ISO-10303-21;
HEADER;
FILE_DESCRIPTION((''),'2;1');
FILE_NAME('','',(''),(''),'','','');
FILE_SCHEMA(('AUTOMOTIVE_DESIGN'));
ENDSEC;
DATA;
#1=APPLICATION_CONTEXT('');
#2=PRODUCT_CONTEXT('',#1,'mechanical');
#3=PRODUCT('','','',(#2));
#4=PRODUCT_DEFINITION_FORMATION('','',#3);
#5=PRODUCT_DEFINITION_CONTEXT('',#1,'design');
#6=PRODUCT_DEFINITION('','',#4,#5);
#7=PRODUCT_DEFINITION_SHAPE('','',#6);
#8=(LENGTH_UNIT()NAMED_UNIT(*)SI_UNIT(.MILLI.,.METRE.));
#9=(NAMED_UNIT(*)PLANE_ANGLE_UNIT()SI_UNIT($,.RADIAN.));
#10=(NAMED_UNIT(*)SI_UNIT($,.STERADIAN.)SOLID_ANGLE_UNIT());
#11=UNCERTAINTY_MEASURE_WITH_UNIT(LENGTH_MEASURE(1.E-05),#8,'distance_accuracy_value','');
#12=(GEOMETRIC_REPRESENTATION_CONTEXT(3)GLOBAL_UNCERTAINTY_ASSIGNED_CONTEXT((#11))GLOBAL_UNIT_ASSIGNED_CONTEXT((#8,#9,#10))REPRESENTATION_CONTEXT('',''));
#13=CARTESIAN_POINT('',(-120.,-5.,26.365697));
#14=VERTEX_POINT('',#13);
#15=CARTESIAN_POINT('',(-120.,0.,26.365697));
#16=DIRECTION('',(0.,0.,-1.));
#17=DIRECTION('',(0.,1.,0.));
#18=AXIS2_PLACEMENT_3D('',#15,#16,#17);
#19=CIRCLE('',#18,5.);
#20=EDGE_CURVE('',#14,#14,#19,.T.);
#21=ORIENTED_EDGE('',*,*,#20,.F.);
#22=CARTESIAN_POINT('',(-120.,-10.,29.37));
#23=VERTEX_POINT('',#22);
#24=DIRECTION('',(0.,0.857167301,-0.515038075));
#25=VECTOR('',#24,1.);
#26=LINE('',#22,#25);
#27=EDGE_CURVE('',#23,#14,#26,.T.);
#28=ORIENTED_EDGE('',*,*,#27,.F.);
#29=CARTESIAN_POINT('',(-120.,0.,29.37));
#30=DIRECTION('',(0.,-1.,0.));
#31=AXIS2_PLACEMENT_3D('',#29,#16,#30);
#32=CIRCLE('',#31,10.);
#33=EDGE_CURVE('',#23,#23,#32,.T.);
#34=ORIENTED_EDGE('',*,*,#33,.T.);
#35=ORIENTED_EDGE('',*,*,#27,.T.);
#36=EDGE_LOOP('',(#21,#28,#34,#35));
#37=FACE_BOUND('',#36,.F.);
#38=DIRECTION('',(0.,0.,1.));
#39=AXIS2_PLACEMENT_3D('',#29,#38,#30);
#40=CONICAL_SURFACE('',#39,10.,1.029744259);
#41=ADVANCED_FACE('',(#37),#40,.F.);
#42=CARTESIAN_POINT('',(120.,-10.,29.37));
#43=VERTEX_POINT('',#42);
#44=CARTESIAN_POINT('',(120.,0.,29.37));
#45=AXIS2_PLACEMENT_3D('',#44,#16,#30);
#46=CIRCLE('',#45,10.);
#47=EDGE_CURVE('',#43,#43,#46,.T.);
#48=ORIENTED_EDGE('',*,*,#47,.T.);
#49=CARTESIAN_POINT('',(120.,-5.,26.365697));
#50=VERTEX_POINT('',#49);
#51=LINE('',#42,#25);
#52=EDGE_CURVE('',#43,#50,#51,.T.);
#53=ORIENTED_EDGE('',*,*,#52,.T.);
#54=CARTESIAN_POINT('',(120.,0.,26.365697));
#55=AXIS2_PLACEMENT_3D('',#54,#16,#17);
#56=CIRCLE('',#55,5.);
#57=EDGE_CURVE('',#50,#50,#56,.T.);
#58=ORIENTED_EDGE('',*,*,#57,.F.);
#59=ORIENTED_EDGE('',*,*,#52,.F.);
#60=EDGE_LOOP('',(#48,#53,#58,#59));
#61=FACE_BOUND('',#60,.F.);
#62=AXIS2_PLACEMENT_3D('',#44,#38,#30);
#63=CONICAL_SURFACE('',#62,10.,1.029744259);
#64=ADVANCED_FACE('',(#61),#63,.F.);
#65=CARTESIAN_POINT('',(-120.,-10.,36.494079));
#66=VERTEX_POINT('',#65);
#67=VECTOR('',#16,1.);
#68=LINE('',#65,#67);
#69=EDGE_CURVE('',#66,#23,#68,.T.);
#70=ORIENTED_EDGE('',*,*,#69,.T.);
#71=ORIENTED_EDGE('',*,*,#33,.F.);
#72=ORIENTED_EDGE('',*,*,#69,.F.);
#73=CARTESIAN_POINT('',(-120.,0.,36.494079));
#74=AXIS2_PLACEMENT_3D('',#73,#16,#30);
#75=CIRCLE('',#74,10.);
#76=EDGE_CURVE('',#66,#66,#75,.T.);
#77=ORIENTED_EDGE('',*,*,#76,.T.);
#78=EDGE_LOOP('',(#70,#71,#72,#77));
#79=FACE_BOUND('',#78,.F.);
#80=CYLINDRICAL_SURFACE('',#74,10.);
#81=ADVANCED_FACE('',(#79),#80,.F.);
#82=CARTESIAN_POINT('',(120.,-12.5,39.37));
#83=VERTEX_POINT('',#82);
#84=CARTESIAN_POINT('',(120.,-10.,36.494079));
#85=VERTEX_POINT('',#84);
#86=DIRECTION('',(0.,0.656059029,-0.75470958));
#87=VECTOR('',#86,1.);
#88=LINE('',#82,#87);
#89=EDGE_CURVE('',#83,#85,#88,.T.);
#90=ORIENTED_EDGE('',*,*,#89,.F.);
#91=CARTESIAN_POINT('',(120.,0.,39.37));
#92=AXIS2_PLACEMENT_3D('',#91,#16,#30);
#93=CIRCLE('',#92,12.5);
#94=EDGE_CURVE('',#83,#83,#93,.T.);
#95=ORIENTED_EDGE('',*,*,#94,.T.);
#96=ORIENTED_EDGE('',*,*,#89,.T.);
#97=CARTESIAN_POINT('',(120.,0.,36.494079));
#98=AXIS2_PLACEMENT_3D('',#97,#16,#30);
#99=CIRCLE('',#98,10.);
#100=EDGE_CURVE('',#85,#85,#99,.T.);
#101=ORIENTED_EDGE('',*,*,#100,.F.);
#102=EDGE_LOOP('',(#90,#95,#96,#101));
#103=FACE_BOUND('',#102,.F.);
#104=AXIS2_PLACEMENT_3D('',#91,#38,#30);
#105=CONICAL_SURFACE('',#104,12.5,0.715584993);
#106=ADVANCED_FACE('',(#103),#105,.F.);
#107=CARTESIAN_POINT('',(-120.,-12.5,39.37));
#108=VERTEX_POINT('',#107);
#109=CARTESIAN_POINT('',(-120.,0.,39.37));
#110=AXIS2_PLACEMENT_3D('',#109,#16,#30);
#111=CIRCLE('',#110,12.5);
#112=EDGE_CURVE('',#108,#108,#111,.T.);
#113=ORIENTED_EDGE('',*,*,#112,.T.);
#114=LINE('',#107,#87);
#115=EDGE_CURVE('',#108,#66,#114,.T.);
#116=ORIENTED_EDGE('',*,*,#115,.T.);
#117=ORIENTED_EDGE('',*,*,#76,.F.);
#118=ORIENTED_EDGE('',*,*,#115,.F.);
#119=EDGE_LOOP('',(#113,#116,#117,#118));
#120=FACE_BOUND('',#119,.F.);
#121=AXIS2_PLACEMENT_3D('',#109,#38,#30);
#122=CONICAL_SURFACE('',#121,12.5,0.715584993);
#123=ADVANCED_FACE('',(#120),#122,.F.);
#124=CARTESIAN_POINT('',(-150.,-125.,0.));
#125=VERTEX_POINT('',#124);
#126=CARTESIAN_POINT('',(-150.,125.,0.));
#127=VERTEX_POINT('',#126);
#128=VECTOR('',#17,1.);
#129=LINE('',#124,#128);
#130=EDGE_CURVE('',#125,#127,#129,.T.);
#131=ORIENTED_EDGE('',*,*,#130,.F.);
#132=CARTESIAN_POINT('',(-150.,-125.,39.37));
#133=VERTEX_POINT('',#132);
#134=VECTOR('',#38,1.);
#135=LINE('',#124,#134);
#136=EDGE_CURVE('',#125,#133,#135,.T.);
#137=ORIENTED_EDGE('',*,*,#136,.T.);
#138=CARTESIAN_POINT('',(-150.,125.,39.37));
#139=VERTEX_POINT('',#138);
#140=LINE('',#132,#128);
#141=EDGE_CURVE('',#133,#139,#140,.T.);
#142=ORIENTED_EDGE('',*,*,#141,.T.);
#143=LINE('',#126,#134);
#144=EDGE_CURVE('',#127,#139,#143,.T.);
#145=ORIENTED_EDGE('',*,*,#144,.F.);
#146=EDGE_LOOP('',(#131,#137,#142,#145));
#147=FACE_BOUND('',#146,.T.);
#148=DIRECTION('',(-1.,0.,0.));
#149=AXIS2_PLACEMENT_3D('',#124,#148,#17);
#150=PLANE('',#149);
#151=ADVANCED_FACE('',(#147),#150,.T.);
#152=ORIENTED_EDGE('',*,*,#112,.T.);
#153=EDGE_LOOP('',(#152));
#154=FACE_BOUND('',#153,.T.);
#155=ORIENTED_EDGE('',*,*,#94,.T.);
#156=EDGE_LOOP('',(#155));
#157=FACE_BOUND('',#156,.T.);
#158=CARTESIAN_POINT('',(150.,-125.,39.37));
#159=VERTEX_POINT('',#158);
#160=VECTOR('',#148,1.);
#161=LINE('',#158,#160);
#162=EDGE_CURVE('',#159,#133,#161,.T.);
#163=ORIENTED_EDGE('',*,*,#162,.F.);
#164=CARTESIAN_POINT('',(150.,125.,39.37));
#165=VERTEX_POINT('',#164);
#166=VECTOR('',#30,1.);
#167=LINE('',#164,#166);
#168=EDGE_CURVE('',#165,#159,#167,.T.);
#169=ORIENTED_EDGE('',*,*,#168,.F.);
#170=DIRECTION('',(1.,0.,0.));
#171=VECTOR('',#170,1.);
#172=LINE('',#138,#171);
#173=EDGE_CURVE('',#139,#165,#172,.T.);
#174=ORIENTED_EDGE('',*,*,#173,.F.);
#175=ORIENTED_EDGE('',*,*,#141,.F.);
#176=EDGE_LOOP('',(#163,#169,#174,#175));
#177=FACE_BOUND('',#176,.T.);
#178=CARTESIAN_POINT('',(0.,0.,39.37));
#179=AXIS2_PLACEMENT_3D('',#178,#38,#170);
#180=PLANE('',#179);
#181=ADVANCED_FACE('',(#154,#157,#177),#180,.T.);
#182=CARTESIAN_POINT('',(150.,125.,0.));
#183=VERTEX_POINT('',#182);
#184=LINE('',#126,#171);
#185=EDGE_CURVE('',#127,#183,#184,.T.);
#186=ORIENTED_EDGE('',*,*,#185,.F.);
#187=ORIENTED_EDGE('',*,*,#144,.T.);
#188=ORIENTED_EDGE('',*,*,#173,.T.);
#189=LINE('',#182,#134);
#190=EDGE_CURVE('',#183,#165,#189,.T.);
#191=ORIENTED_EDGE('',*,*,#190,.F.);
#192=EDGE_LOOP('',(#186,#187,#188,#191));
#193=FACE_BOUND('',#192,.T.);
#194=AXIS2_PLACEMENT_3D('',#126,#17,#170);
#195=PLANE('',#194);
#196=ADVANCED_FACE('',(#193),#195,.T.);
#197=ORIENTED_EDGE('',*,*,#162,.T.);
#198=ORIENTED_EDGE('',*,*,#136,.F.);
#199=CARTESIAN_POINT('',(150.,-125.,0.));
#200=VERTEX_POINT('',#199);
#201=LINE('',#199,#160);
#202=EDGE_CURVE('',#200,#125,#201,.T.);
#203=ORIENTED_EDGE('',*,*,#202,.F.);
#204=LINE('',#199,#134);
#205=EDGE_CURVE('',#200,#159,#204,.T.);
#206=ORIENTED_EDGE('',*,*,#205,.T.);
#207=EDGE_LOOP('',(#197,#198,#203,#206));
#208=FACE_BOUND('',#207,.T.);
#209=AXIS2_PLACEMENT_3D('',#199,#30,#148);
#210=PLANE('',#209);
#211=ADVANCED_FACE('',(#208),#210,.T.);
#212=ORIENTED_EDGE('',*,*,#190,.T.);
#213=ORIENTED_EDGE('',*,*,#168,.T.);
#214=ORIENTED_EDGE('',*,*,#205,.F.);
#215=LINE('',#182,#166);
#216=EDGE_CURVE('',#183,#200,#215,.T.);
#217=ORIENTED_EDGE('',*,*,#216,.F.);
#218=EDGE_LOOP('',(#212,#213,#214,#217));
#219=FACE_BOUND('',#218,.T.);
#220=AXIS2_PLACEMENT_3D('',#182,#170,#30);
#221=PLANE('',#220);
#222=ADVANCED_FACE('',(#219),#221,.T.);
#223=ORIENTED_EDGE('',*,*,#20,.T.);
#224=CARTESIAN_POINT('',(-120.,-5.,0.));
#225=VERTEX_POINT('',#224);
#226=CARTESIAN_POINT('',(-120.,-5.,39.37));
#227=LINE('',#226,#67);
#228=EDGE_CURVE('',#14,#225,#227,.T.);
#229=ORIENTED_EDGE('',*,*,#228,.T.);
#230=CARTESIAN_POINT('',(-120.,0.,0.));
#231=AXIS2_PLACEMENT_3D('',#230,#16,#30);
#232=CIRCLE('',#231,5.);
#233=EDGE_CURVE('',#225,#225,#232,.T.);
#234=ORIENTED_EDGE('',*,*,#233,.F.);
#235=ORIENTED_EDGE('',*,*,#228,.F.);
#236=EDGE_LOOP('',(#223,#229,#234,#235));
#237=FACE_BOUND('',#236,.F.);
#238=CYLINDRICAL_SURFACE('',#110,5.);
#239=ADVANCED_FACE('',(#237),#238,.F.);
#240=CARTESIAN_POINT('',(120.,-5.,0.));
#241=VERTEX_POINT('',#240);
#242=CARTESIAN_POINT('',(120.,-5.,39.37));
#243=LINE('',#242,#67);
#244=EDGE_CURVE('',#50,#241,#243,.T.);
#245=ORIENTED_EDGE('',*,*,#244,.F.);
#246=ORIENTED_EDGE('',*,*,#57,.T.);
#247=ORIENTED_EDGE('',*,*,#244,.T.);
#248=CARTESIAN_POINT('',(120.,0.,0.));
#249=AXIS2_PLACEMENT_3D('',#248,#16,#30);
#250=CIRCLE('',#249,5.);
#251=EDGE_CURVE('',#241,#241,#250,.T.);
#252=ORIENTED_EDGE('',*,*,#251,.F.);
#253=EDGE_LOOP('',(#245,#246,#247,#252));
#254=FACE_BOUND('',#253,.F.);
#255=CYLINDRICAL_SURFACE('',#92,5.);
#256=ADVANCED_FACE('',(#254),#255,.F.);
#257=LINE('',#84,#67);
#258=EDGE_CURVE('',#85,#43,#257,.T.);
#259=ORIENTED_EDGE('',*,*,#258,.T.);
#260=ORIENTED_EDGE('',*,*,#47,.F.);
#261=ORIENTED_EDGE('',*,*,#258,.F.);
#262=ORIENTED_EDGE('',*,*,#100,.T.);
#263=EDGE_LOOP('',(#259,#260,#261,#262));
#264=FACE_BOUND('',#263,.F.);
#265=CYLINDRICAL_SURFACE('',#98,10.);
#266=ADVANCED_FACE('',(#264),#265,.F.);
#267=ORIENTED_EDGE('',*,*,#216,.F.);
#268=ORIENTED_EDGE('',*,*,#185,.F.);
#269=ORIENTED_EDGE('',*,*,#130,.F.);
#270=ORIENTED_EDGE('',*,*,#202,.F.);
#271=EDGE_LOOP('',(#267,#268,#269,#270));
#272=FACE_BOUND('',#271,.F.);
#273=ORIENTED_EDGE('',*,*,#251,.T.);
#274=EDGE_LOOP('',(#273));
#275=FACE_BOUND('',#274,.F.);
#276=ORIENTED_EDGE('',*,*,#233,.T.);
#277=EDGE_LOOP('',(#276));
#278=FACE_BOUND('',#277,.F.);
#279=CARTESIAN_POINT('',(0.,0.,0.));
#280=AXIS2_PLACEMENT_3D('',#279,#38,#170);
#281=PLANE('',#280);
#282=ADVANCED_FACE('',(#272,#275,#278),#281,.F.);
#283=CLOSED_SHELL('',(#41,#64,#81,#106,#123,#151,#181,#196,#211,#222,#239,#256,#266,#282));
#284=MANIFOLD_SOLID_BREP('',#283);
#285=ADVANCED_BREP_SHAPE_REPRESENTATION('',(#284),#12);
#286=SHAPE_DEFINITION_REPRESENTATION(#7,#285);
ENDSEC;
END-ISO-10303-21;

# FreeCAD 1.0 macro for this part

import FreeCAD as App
import Part
import Sketcher
from FreeCAD import Vector

doc = App.newDocument("Part")
body = doc.addObject("PartDesign::Body", "Body")

# Sketch on XY plane
sketch1 = body.newObject("Sketcher::SketchObject", "Sketch")
sketch1.AttachmentSupport = (doc.getObject("XY_Plane"), [""])
sketch1.MapMode = "FlatFace"
sketch1.addGeometry([
    Part.LineSegment(Vector(150, 125, 0), Vector(-150, 125, 0)),
    Part.LineSegment(Vector(-150, 125, 0), Vector(-150, -125, 0)),
    Part.LineSegment(Vector(-150, -125, 0), Vector(150, -125, 0)),
    Part.LineSegment(Vector(150, -125, 0), Vector(150, 125, 0)),
], False)
sketch1.addConstraint([
    Sketcher.Constraint("Coincident", 0, 2, 1, 1),
    Sketcher.Constraint("Coincident", 1, 2, 2, 1),
    Sketcher.Constraint("Coincident", 2, 2, 3, 1),
    Sketcher.Constraint("Coincident", 3, 2, 0, 1),
    Sketcher.Constraint("Horizontal", 0),
    Sketcher.Constraint("Vertical", 1),
    Sketcher.Constraint("Horizontal", 2),
    Sketcher.Constraint("Vertical", 3),
    Sketcher.Constraint("Symmetric", 0, 2, 2, 2, -1, 1),
    Sketcher.Constraint("DistanceX", 0, 2, 0, 1, 300.0),
    Sketcher.Constraint("DistanceY", 1, 2, 1, 1, 250.0),
])
pad1 = body.newObject("PartDesign::Pad", "Pad")
pad1.Profile = sketch1
pad1.Length = 39.37

# Sketch on XY plane
sketch2 = body.newObject("Sketcher::SketchObject", "Sketch001")
sketch2.AttachmentSupport = (doc.getObject("XY_Plane"), [""])
sketch2.MapMode = "FlatFace"
sketch2.AttachmentOffset = App.Placement(Vector(0, 0, 39.37), App.Rotation())
sketch2.addGeometry([
    Part.Circle(Vector(-120, 0, 0), Vector(0, 0, 1), 5),
    Part.Circle(Vector(120, 0, 0), Vector(0, 0, 1), 5),
], False)
sketch2.addConstraint([
    Sketcher.Constraint("Equal", 0, 1),
    Sketcher.Constraint("Symmetric", 0, 3, 1, 3, -1, 1),
    Sketcher.Constraint("PointOnObject", 0, 3, -1),
    Sketcher.Constraint("Diameter", 0, 10.0),
    Sketcher.Constraint("DistanceX", 0, 3, -1, 1, 120.0),
])
doc.recompute()
hole = body.newObject("PartDesign::Hole", "Hole")
hole.Profile = sketch2
hole.ThreadType = "None"
hole.Diameter = 10
hole.DepthType = "ThroughAll"

# Sketch on XY plane
sketch3 = body.newObject("Sketcher::SketchObject", "Sketch002")
sketch3.AttachmentSupport = (doc.getObject("XY_Plane"), [""])
sketch3.MapMode = "FlatFace"
sketch3.AttachmentOffset = App.Placement(Vector(0, 0, 39.37), App.Rotation())
sketch3.addGeometry([
    Part.Circle(Vector(-120, 0, 0), Vector(0, 0, 1), 10),
    Part.Circle(Vector(120, 0, 0), Vector(0, 0, 1), 10),
], False)
sketch3.addConstraint([
    Sketcher.Constraint("Equal", 0, 1),
    Sketcher.Constraint("Symmetric", 0, 3, 1, 3, -1, 1),
    Sketcher.Constraint("PointOnObject", 0, 3, -1),
    Sketcher.Constraint("Diameter", 0, 20.0),
    Sketcher.Constraint("DistanceX", 0, 3, -1, 1, 120.0),
])
doc.recompute()
hole2 = body.newObject("PartDesign::Hole", "Hole001")
hole2.Profile = sketch3
hole2.ThreadType = "None"
hole2.Diameter = 20
hole2.DepthType = "Dimension"
hole2.Depth = 10
hole2.DrillPoint = "Angled"
hole2.DrillPointAngle = 118
hole2.HoleCutType = "Countersink"
hole2.HoleCutDiameter = 25
hole2.HoleCutCountersinkAngle = 82

doc.recompute()
